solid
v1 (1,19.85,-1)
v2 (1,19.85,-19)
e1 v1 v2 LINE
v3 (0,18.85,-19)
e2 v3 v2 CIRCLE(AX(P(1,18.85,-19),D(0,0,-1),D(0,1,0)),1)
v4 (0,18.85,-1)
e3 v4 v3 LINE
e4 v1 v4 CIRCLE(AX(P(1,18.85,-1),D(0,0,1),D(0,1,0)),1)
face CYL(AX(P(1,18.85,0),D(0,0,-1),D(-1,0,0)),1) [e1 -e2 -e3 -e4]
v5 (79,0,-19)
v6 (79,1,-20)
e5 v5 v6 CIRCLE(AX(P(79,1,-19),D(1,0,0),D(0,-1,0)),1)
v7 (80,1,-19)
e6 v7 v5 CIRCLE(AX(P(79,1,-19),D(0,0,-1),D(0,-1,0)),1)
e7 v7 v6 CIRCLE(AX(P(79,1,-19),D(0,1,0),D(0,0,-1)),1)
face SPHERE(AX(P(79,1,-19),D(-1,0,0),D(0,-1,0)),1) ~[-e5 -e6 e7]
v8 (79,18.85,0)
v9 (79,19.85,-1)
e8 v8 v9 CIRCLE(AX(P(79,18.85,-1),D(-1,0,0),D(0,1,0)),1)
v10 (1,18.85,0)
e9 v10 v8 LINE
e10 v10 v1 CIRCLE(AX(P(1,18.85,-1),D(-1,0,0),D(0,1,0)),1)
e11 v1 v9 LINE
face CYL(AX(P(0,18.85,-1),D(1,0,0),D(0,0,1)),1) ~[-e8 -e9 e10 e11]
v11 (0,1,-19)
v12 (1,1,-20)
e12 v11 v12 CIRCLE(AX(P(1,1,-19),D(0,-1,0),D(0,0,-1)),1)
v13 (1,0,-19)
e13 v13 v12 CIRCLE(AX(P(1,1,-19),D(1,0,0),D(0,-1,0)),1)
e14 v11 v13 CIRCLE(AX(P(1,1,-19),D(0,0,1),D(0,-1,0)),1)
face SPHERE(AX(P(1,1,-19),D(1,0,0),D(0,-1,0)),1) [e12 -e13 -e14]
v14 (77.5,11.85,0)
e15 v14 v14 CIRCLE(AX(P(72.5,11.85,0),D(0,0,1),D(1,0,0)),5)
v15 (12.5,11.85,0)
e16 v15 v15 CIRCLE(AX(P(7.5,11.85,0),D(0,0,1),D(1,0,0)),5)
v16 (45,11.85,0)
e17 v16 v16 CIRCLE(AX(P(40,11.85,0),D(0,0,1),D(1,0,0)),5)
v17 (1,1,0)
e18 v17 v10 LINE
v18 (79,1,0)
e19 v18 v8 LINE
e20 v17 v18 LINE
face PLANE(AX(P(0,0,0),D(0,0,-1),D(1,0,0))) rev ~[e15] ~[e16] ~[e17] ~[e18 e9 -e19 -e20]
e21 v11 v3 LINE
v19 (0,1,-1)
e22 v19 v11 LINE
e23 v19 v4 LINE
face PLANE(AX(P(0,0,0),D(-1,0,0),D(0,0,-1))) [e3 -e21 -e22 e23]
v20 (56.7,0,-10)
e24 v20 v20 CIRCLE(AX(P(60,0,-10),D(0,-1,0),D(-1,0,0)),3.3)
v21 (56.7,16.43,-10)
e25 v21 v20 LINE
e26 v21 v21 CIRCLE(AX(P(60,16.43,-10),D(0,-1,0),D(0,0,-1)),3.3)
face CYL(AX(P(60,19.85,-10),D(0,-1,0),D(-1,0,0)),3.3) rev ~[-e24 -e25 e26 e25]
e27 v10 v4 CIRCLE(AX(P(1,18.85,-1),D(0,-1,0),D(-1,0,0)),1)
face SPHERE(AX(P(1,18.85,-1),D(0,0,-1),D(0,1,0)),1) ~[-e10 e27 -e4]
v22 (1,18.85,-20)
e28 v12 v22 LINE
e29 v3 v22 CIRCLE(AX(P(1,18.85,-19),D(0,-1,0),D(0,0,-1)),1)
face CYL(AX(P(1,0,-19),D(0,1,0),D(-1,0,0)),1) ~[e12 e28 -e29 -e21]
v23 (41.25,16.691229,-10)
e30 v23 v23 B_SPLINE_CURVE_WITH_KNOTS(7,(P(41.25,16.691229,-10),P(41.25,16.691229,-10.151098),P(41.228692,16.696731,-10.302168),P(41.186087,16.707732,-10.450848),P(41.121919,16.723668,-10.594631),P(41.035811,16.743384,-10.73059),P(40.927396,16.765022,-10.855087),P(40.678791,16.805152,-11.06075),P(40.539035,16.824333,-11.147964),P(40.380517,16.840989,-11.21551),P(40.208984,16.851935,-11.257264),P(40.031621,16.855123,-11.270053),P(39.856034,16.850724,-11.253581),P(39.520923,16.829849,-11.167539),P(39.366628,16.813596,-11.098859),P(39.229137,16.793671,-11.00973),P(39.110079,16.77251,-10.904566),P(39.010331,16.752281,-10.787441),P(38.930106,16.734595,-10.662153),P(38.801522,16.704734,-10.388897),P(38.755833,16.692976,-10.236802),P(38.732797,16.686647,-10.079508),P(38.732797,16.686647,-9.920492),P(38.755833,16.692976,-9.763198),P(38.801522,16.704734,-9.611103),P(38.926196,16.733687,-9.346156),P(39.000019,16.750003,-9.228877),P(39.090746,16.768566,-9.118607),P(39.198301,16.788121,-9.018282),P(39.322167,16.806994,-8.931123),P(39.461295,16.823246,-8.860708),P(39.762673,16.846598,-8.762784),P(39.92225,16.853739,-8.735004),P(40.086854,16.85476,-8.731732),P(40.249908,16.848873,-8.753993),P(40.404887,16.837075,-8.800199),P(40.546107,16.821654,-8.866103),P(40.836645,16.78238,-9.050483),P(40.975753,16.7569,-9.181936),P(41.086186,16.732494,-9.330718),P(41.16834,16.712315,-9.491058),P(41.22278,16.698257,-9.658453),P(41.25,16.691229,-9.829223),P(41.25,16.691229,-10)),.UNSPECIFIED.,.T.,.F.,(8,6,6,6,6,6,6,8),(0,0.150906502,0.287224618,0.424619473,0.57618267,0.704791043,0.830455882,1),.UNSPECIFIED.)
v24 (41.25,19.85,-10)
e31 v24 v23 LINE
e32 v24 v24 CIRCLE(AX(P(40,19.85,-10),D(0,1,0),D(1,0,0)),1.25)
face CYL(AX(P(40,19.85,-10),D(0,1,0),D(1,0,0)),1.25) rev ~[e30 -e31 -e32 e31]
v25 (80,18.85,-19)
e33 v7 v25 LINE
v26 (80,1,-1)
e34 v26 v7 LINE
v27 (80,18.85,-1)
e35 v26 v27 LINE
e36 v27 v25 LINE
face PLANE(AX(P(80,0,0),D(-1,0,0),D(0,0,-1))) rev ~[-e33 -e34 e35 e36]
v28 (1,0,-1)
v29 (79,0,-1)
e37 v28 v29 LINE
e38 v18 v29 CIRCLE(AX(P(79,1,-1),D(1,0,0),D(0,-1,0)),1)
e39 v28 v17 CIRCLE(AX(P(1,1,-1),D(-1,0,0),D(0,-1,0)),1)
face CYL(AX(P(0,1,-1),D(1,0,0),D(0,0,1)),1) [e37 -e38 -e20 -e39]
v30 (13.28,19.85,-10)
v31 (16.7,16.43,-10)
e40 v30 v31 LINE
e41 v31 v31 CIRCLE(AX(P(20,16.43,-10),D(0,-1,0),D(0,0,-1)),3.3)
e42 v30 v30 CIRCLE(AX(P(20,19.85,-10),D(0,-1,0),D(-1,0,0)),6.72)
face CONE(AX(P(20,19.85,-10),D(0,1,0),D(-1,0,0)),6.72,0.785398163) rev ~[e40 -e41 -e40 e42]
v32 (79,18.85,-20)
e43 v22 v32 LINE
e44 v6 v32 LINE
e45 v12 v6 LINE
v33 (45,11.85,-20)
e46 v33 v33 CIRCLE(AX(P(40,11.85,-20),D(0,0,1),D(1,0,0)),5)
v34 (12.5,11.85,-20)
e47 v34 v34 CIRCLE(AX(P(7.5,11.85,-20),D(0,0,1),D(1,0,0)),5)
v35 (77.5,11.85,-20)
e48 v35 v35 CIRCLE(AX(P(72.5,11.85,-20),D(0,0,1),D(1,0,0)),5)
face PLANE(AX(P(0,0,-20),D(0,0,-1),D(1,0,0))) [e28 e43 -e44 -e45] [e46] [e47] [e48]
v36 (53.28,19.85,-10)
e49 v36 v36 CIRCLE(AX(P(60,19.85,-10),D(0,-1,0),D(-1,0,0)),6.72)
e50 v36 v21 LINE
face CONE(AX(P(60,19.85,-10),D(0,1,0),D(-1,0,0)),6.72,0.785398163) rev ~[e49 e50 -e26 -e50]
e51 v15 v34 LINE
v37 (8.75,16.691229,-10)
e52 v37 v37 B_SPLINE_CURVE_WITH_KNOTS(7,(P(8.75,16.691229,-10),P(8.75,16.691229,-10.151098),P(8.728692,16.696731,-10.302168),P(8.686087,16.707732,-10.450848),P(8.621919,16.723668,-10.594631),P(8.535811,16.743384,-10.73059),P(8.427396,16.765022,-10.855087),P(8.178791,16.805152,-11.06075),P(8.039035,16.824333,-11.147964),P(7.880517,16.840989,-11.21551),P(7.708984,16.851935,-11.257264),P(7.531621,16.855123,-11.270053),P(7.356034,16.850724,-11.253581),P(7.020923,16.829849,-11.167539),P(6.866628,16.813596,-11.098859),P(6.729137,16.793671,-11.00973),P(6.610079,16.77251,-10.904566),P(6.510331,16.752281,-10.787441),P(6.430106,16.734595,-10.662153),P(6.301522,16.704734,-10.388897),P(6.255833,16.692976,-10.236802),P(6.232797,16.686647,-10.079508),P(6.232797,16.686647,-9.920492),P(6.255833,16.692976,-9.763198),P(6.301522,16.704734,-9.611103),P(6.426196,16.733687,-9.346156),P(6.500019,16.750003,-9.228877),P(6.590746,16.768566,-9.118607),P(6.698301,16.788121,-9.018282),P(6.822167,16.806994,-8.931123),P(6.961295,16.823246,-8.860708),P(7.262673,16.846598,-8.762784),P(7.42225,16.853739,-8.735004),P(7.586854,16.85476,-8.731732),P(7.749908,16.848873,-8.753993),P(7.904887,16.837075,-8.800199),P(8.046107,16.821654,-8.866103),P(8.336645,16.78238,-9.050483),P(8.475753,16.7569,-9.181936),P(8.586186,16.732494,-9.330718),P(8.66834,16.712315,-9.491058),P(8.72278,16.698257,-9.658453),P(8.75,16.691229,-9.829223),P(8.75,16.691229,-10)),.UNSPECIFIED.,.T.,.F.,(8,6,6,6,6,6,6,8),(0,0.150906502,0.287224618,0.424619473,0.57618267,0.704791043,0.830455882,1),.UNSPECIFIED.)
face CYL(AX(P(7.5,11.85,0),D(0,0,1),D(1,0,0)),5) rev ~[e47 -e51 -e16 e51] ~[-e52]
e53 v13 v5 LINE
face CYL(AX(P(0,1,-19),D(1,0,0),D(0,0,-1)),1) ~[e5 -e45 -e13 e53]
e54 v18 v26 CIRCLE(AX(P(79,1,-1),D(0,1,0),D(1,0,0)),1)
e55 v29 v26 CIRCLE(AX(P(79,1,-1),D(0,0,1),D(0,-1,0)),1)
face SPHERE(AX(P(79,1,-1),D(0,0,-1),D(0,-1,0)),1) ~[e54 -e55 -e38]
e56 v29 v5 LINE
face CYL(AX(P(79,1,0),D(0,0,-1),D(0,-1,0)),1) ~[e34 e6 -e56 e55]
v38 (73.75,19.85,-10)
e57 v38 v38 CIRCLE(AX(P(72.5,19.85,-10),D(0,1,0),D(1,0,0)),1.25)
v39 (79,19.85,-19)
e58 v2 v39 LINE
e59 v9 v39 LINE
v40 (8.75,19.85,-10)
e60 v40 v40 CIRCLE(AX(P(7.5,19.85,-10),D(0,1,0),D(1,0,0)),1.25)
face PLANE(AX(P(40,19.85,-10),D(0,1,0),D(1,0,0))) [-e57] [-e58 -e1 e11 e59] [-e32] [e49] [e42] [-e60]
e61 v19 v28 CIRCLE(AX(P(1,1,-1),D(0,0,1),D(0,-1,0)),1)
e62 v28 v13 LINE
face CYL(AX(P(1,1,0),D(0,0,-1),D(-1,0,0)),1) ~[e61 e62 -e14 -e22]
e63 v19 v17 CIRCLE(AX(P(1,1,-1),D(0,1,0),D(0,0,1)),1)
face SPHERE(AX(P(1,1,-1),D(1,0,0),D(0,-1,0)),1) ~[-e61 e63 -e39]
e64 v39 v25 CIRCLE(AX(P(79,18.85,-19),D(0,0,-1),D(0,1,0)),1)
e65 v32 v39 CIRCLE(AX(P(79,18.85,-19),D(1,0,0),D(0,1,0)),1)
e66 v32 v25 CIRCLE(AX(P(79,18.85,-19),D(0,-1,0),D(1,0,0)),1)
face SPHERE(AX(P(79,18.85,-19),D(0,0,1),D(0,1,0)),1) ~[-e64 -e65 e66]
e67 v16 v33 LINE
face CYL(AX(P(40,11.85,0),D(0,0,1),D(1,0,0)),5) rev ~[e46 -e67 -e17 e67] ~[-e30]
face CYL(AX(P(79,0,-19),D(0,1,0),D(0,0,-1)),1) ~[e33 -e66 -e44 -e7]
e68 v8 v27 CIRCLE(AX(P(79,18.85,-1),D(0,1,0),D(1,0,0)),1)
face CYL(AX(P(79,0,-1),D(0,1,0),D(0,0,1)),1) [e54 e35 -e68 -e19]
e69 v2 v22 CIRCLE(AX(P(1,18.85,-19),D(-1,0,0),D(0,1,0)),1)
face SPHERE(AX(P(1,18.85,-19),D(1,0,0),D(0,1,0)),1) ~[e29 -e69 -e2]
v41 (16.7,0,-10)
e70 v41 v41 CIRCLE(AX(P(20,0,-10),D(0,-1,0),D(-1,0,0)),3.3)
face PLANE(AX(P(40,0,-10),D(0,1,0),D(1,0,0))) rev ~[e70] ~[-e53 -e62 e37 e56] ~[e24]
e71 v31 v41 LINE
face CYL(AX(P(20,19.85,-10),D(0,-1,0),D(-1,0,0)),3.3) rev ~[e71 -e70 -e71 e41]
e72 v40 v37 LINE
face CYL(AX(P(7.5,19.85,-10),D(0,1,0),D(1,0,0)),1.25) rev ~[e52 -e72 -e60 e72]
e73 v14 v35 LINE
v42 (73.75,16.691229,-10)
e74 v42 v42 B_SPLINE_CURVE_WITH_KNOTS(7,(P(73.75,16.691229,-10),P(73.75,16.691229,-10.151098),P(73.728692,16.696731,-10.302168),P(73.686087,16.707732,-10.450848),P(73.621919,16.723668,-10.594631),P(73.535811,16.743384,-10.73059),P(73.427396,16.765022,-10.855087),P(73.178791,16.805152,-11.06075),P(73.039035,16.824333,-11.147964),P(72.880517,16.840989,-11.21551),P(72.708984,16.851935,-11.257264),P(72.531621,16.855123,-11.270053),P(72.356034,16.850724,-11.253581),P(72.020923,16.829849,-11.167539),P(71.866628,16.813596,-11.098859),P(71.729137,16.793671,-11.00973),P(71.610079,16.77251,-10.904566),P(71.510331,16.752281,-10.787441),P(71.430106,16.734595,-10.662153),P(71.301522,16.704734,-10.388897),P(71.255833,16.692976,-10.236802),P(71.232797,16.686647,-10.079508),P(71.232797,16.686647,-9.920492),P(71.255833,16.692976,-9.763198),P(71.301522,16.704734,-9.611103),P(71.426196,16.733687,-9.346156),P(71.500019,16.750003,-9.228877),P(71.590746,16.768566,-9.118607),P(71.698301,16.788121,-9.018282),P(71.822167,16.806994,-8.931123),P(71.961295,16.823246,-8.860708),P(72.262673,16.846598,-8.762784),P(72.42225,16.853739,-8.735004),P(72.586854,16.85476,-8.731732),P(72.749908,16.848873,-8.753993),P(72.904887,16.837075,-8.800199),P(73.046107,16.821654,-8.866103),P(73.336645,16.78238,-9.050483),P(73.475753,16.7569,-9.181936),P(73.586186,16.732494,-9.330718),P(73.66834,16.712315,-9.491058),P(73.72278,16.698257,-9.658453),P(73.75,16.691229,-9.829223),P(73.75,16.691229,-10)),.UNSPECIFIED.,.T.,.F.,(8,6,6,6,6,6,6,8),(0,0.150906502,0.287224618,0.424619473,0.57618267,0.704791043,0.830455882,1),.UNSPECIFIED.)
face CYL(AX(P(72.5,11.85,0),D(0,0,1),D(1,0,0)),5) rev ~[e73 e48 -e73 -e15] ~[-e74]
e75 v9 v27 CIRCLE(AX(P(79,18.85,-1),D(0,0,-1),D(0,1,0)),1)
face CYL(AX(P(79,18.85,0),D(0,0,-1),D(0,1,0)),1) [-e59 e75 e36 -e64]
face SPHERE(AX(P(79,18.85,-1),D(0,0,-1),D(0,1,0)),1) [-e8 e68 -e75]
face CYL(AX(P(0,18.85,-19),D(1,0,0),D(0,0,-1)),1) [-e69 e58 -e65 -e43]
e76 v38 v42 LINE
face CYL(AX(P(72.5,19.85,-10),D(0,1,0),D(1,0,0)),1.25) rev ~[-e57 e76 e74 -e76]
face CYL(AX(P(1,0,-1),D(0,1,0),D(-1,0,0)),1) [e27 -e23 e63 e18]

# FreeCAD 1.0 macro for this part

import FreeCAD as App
import Part
import Sketcher
Q = App.Units.Quantity


def edges_at(feature, points):
    """Names of the edges that pass closest to the given points."""
    edges = feature.Shape.Edges
    near = lambda p: min(range(len(edges)), key=lambda i: edges[i].distToShape(Part.Vertex(*p))[0])
    return sorted({f"Edge{near(p) + 1}" for p in points})

doc = App.newDocument("Part")
body = doc.addObject("PartDesign::Body", "Body")

sketch1 = body.newObject("Sketcher::SketchObject", "Sketch")
sketch1.AttachmentSupport = (doc.getObject("XZ_Plane"), [""])
sketch1.MapMode = "FlatFace"
sketch1.addGeometry([
    Part.LineSegment(App.Vector(0, -20, 0), App.Vector(0, 0, 0)),
    Part.LineSegment(App.Vector(0, 0, 0), App.Vector(80, 0, 0)),
    Part.LineSegment(App.Vector(80, 0, 0), App.Vector(80, -20, 0)),
    Part.LineSegment(App.Vector(80, -20, 0), App.Vector(0, -20, 0)),
], False)
sketch1.addConstraint([
    Sketcher.Constraint("Coincident", 0, 2, 1, 1),
    Sketcher.Constraint("Coincident", 1, 2, 2, 1),
    Sketcher.Constraint("Coincident", 2, 2, 3, 1),
    Sketcher.Constraint("Coincident", 3, 2, 0, 1),
    Sketcher.Constraint("Vertical", 0),
    Sketcher.Constraint("Horizontal", 1),
    Sketcher.Constraint("Vertical", 2),
    Sketcher.Constraint("Horizontal", 3),
    Sketcher.Constraint("Coincident", 0, 2, -1, 1),
    Sketcher.Constraint("DistanceX", 1, 1, 1, 2, Q("80 mm")),
    Sketcher.Constraint("DistanceY", 0, 1, 0, 2, Q("20 mm")),
])
pad1 = body.newObject("PartDesign::Pad", "Pad")
pad1.Profile = sketch1
pad1.Length = 19.85
pad1.Reversed = True

sketch2 = body.newObject("Sketcher::SketchObject", "Sketch001")
sketch2.AttachmentSupport = (doc.getObject("XZ_Plane"), [""])
sketch2.MapMode = "FlatFace"
sketch2.AttachmentOffset = App.Placement(App.Vector(0, 0, -19.85), App.Rotation())
sketch2.addGeometry(Part.Circle(App.Vector(20, -10, 0), App.Vector(0, 0, 1), 3.1), False)
sketch2.addConstraint([
    Sketcher.Constraint("Diameter", 0, Q("6.2 mm")),
    Sketcher.Constraint("DistanceX", -1, 1, 0, 3, Q("20 mm")),
    Sketcher.Constraint("DistanceY", 0, 3, -1, 1, Q("10 mm")),
])
pocket1 = body.newObject("PartDesign::Pocket", "Pocket")
pocket1.Profile = sketch2
pocket1.Type = "UpToFirst"
pocket1.Reversed = True

sketch3 = body.newObject("Sketcher::SketchObject", "Sketch002")
sketch3.AttachmentSupport = (doc.getObject("XZ_Plane"), [""])
sketch3.MapMode = "FlatFace"
sketch3.AttachmentOffset = App.Placement(App.Vector(0, 0, -19.85), App.Rotation())
sketch3.addGeometry(Part.Circle(App.Vector(60, -10, 0), App.Vector(0, 0, 1), 3.1), False)
sketch3.addConstraint([
    Sketcher.Constraint("Diameter", 0, Q("6.2 mm")),
    Sketcher.Constraint("DistanceX", -1, 1, 0, 3, Q("60 mm")),
    Sketcher.Constraint("DistanceY", 0, 3, -1, 1, Q("10 mm")),
])
pocket2 = body.newObject("PartDesign::Pocket", "Pocket001")
pocket2.Profile = sketch3
pocket2.Type = "UpToFirst"
pocket2.Reversed = True

sketch4 = body.newObject("Sketcher::SketchObject", "Sketch003")
sketch4.AttachmentSupport = (doc.getObject("XY_Plane"), [""])
sketch4.MapMode = "FlatFace"
sketch4.addGeometry(Part.Circle(App.Vector(8, 12, 0), App.Vector(0, 0, 1), 5), False)
sketch4.addConstraint([
    Sketcher.Constraint("Diameter", 0, Q("10 mm")),
    Sketcher.Constraint("DistanceX", -1, 1, 0, 3, Q("7.5 mm")),
    Sketcher.Constraint("DistanceY", -1, 1, 0, 3, Q("11.85 mm")),
])
pocket3 = body.newObject("PartDesign::Pocket", "Pocket002")
pocket3.Profile = sketch4
pocket3.Type = "UpToFirst"

sketch5 = body.newObject("Sketcher::SketchObject", "Sketch004")
sketch5.AttachmentSupport = (doc.getObject("XY_Plane"), [""])
sketch5.MapMode = "FlatFace"
sketch5.addGeometry(Part.Circle(App.Vector(72, 12, 0), App.Vector(0, 0, 1), 5), False)
sketch5.addConstraint([
    Sketcher.Constraint("Diameter", 0, Q("10 mm")),
    Sketcher.Constraint("DistanceX", -1, 1, 0, 3, Q("72.5 mm")),
    Sketcher.Constraint("DistanceY", -1, 1, 0, 3, Q("11.85 mm")),
])
pocket4 = body.newObject("PartDesign::Pocket", "Pocket003")
pocket4.Profile = sketch5
pocket4.Type = "UpToFirst"

sketch6 = body.newObject("Sketcher::SketchObject", "Sketch005")
sketch6.AttachmentSupport = (doc.getObject("XY_Plane"), [""])
sketch6.MapMode = "FlatFace"
sketch6.addGeometry(Part.Circle(App.Vector(40, 12, 0), App.Vector(0, 0, 1), 5), False)
sketch6.addConstraint([
    Sketcher.Constraint("Diameter", 0, Q("10 mm")),
    Sketcher.Constraint("DistanceX", -1, 1, 0, 3, Q("40 mm")),
    Sketcher.Constraint("DistanceY", -1, 1, 0, 3, Q("11.85 mm")),
])
pocket5 = body.newObject("PartDesign::Pocket", "Pocket004")
pocket5.Profile = sketch6
pocket5.Type = "UpToFirst"
doc.recompute()

fillet = body.newObject("PartDesign::Fillet", "Fillet")
fillet.Base = (pocket5, edges_at(pocket5, [
    (80, 19.85, -10),
    (40, 19.85, -20),
    (0, 19.85, -10),
    (40, 0, -20),
    (80, 0, -10),
    (40, 0, 0),
    (0, 0, -10),
    (40, 19.85, 0),
    (0, 9.925, -20),
    (80, 9.925, -20),
    (80, 9.925, 0),
    (0, 9.925, 0),
]))
fillet.Radius = 1

sketch7 = body.newObject("Sketcher::SketchObject", "Sketch006")
sketch7.AttachmentSupport = (doc.getObject("XZ_Plane"), [""])
sketch7.MapMode = "FlatFace"
sketch7.AttachmentOffset = App.Placement(App.Vector(0, 0, -19.85), App.Rotation())
sketch7.addGeometry([
    Part.Circle(App.Vector(60, -10, 0), App.Vector(0, 0, 1), 3.3),
    Part.Circle(App.Vector(20, -10, 0), App.Vector(0, 0, 1), 3.3),
], False)
sketch7.addConstraint([
    Sketcher.Constraint("Equal", 0, 1),
    Sketcher.Constraint("Horizontal", 0, 3, 1, 3),
    Sketcher.Constraint("Diameter", 0, Q("6.6 mm")),
    Sketcher.Constraint("DistanceX", -1, 1, 0, 3, Q("60 mm")),
    Sketcher.Constraint("DistanceY", 0, 3, -1, 1, Q("10 mm")),
    Sketcher.Constraint("DistanceX", -1, 1, 1, 3, Q("20 mm")),
])
doc.recompute()
hole = body.newObject("PartDesign::Hole", "Hole")
hole.Profile = sketch7
hole.ThreadType = "None"
hole.Diameter = 6.6
hole.DepthType = "Dimension"
hole.Depth = 19.85
hole.DrillPoint = "Flat"
hole.HoleCutType = "Countersink"
hole.HoleCutDiameter = 13.44
hole.HoleCutCountersinkAngle = 90
hole.Reversed = True

sketch8 = body.newObject("Sketcher::SketchObject", "Sketch007")
sketch8.AttachmentSupport = (doc.getObject("XZ_Plane"), [""])
sketch8.MapMode = "FlatFace"
sketch8.AttachmentOffset = App.Placement(App.Vector(0, 0, -19.85), App.Rotation())
sketch8.addGeometry(Part.Circle(App.Vector(7.5, -10, 0), App.Vector(0, 0, 1), 1.2), False)
sketch8.addConstraint([
    Sketcher.Constraint("Diameter", 0, Q("2.5 mm")),
    Sketcher.Constraint("DistanceY", 0, 3, -1, 1, Q("10 mm")),
    Sketcher.Constraint("DistanceX", -1, 1, 0, 3, Q("7.5 mm")),
])
pocket6 = body.newObject("PartDesign::Pocket", "Pocket005")
pocket6.Profile = sketch8
pocket6.Type = "UpToFirst"
pocket6.Reversed = True

sketch9 = body.newObject("Sketcher::SketchObject", "Sketch008")
sketch9.AttachmentSupport = (doc.getObject("XZ_Plane"), [""])
sketch9.MapMode = "FlatFace"
sketch9.AttachmentOffset = App.Placement(App.Vector(0, 0, -19.85), App.Rotation())
sketch9.addGeometry(Part.Circle(App.Vector(40, -10, 0), App.Vector(0, 0, 1), 1.2), False)
sketch9.addConstraint([
    Sketcher.Constraint("Diameter", 0, Q("2.5 mm")),
    Sketcher.Constraint("DistanceX", -1, 1, 0, 3, Q("40 mm")),
    Sketcher.Constraint("DistanceY", 0, 3, -1, 1, Q("10 mm")),
])
pocket7 = body.newObject("PartDesign::Pocket", "Pocket006")
pocket7.Profile = sketch9
pocket7.Type = "UpToFirst"
pocket7.Reversed = True

sketch10 = body.newObject("Sketcher::SketchObject", "Sketch009")
sketch10.AttachmentSupport = (doc.getObject("XZ_Plane"), [""])
sketch10.MapMode = "FlatFace"
sketch10.AttachmentOffset = App.Placement(App.Vector(0, 0, -19.85), App.Rotation())
sketch10.addGeometry(Part.Circle(App.Vector(72.5, -10, 0), App.Vector(0, 0, 1), 1.2), False)
sketch10.addConstraint([
    Sketcher.Constraint("Diameter", 0, Q("2.5 mm")),
    Sketcher.Constraint("DistanceY", 0, 3, -1, 1, Q("10 mm")),
    Sketcher.Constraint("DistanceX", -1, 1, 0, 3, Q("72.5 mm")),
])
pocket8 = body.newObject("PartDesign::Pocket", "Pocket007")
pocket8.Profile = sketch10
pocket8.Type = "UpToFirst"
pocket8.Reversed = True

doc.recompute()
